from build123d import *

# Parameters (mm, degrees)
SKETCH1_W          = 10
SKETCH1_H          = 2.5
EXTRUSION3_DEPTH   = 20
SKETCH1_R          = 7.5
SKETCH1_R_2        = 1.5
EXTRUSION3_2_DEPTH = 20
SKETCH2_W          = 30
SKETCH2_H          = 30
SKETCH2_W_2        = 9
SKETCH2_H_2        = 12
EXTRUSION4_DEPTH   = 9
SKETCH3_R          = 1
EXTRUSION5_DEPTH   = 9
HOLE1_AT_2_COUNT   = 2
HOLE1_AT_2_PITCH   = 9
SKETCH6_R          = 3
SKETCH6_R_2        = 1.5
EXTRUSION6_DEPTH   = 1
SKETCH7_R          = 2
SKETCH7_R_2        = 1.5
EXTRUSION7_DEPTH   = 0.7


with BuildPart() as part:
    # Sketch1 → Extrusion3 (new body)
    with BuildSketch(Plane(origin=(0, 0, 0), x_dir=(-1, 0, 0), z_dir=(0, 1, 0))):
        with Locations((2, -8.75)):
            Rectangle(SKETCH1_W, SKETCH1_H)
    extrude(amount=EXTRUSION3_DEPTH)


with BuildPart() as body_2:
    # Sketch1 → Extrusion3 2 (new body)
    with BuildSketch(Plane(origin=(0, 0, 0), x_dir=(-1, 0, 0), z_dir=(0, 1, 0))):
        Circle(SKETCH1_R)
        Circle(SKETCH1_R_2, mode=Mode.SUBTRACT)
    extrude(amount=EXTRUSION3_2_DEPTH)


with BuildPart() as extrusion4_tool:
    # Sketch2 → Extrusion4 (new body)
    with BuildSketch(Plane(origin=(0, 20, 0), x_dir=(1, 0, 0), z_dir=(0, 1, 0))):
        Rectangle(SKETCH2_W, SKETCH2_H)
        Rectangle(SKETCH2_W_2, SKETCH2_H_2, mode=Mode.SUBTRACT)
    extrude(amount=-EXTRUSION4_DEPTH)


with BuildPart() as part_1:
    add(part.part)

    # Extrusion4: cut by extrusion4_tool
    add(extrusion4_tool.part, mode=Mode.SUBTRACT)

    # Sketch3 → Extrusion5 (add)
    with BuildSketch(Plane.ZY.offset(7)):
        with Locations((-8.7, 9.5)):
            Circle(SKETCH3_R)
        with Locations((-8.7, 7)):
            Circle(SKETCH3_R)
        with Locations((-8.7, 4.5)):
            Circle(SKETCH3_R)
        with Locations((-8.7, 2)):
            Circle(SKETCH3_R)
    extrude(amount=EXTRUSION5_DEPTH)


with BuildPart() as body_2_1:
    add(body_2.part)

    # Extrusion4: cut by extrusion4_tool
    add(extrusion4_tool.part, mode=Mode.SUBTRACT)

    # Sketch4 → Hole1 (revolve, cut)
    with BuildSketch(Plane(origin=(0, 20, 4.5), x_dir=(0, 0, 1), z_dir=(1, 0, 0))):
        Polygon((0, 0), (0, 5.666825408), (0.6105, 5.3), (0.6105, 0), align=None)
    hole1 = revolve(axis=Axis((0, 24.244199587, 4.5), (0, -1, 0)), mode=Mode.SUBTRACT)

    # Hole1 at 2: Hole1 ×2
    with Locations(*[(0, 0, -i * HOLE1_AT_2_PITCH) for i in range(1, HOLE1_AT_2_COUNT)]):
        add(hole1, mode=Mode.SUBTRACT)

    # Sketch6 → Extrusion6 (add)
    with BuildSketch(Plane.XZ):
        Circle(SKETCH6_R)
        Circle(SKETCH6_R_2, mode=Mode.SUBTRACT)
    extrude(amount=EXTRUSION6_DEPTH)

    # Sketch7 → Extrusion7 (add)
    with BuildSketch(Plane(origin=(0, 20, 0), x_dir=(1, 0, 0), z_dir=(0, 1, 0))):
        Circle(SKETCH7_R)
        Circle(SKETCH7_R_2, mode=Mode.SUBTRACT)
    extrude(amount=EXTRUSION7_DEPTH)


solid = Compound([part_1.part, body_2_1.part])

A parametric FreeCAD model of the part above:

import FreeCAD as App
import Part
import Sketcher
from FreeCAD import Vector
Q = App.Units.Quantity


def add_polygon(sketch, points):
    """Adds a closed chain of lines whose ends are joined by coincident constraints."""
    first, n = sketch.GeometryCount, len(points)
    for a, b in zip(points, points[1:] + points[:1]):
        sketch.addGeometry(Part.LineSegment(App.Vector(*a, 0), App.Vector(*b, 0)), False)
    for i in range(n):
        sketch.addConstraint(Sketcher.Constraint("Coincident", first + i, 2, first + (i + 1) % n, 1))

doc = App.newDocument("Part")
params = doc.addObject("Spreadsheet::Sheet", "Params")
for row, (alias, value) in enumerate([
    ("sketch1_width", "10 mm"),
    ("sketch1_height", "2.5 mm"),
    ("pad1_length", "20 mm"),
    ("sketch2_diameter", "15 mm"),
    ("sketch2_diameter2", "3 mm"),
    ("pad2_length", "20 mm"),
    ("sketch3_width", "30 mm"),
    ("sketch3_width2", "9 mm"),
    ("sketch3_height", "12 mm"),
    ("pad3_length", "9 mm"),
    ("sketch4_diameter", "2 mm"),
    ("pad4_length", "9 mm"),
    ("sketch5_width", "5.3 mm"),
    ("groove_angle", "360 deg"),
    ("linearpattern_pitch", "9 mm"),
    ("sketch6_diameter", "6 mm"),
    ("sketch6_diameter2", "3 mm"),
    ("pad5_length", "1 mm"),
    ("sketch7_diameter", "4 mm"),
    ("sketch7_diameter2", "3 mm"),
    ("pad6_length", "0.7 mm"),
], start=1):
    params.set(f"A{row}", alias)
    params.set(f"B{row}", "=" + value)
    params.setAlias(f"B{row}", alias)

body = doc.addObject("PartDesign::Body", "Body")

sketch1 = doc.addObject("Sketcher::SketchObject", "Sketch")
body.addObject(sketch1)
sketch1.AttachmentSupport = (doc.XZ_Plane, [""])
sketch1.MapMode = "FlatFace"
add_polygon(sketch1, [(3, -7.5), (3, -10), (-7, -10), (-7, -7.5)])
sketch1.addConstraint([
    Sketcher.Constraint("Vertical", 0),
    Sketcher.Constraint("Horizontal", 1),
    Sketcher.Constraint("Vertical", 2),
    Sketcher.Constraint("Horizontal", 3),
    Sketcher.Constraint("DistanceX", 1, 2, 1, 1, 10.0),
    Sketcher.Constraint("DistanceY", 0, 2, 0, 1, 2.5),
    Sketcher.Constraint("DistanceX", -1, 1, 0, 2, 3.0),
    Sketcher.Constraint("DistanceY", 0, 2, -1, 1, 10.0),
])
sketch1.setExpression("Constraints[8]", "Params.sketch1_width")
sketch1.setExpression("Constraints[9]", "Params.sketch1_height")
pad1 = doc.addObject("PartDesign::Pad", "Pad")
body.addObject(pad1)
pad1.Profile = sketch1
pad1.setExpression("Length", "Params.pad1_length")
pad1.Reversed = True
body2 = doc.addObject("PartDesign::Body", "Body001")

sketch2 = doc.addObject("Sketcher::SketchObject", "Sketch001")
body2.addObject(sketch2)
sketch2.AttachmentSupport = (doc.getObject("XZ_Plane001"), [""])
sketch2.MapMode = "FlatFace"
sketch2.addGeometry([
    Part.Circle(Vector(0, 0, 0), Vector(0, 0, 1), 7.5),
    Part.Circle(Vector(0, 0, 0), Vector(0, 0, 1), 1.5),
], False)
sketch2.addConstraint([
    Sketcher.Constraint("Coincident", 0, 3, -1, 1),
    Sketcher.Constraint("Coincident", 1, 3, -1, 1),
    Sketcher.Constraint("Diameter", 0, 15.0),
    Sketcher.Constraint("Diameter", 1, 3.0),
])
sketch2.setExpression("Constraints[2]", "Params.sketch2_diameter")
sketch2.setExpression("Constraints[3]", "Params.sketch2_diameter2")
pad2 = doc.addObject("PartDesign::Pad", "Pad001")
body2.addObject(pad2)
pad2.Profile = sketch2
pad2.setExpression("Length", "Params.pad2_length")
pad2.Reversed = True
body3 = doc.addObject("PartDesign::Body", "Body002")

sketch3 = doc.addObject("Sketcher::SketchObject", "Sketch002")
body3.addObject(sketch3)
sketch3.AttachmentSupport = (doc.getObject("XZ_Plane002"), [""])
sketch3.MapMode = "FlatFace"
sketch3.AttachmentOffset = App.Placement(Vector(0, 0, -20), App.Rotation())
add_polygon(sketch3, [(-15, -15), (-15, 15), (15, 15), (15, -15)])
add_polygon(sketch3, [(4.5, 6), (-4.5, 6), (-4.5, -6), (4.5, -6)])
sketch3.addConstraint([
    Sketcher.Constraint("Vertical", 0),
    Sketcher.Constraint("Horizontal", 1),
    Sketcher.Constraint("Vertical", 2),
    Sketcher.Constraint("Horizontal", 3),
    Sketcher.Constraint("Horizontal", 4),
    Sketcher.Constraint("Vertical", 5),
    Sketcher.Constraint("Horizontal", 6),
    Sketcher.Constraint("Vertical", 7),
    Sketcher.Constraint("Symmetric", 0, 2, 2, 2, -1, 1),
    Sketcher.Constraint("Symmetric", 4, 2, 6, 2, -1, 1),
    Sketcher.Constraint("Equal", 3, 0),
    Sketcher.Constraint("DistanceX", 1, 1, 1, 2, 30.0),
    Sketcher.Constraint("DistanceX", 4, 2, 4, 1, 9.0),
    Sketcher.Constraint("DistanceY", 5, 2, 5, 1, 12.0),
])
sketch3.setExpression("Constraints[19]", "Params.sketch3_width")
sketch3.setExpression("Constraints[20]", "Params.sketch3_width2")
sketch3.setExpression("Constraints[21]", "Params.sketch3_height")
pad3 = doc.addObject("PartDesign::Pad", "Pad002")
body3.addObject(pad3)
pad3.Profile = sketch3
pad3.setExpression("Length", "Params.pad3_length")
doc.recompute()

body4 = doc.addObject("PartDesign::Body", "Body003")
body4.BaseFeature = body3
boolean = doc.addObject("PartDesign::Boolean", "Boolean")
body.addObject(boolean)
boolean.Type = "Cut"
boolean.addObjects([body4])
doc.recompute()

sketch4 = doc.addObject("Sketcher::SketchObject", "Sketch003")
body.addObject(sketch4)
sketch4.AttachmentSupport = (doc.YZ_Plane, [""])
sketch4.MapMode = "FlatFace"
sketch4.AttachmentOffset = App.Placement(Vector(0, 0, -7), App.Rotation())
sketch4.addGeometry([
    Part.Circle(Vector(9.5, -8.7, 0), Vector(0, 0, 1), 1),
    Part.Circle(Vector(7, -8.7, 0), Vector(0, 0, 1), 1),
    Part.Circle(Vector(4.5, -8.7, 0), Vector(0, 0, 1), 1),
    Part.Circle(Vector(2, -8.7, 0), Vector(0, 0, 1), 1),
], False)
sketch4.addConstraint([
    Sketcher.Constraint("Equal", 0, 1),
    Sketcher.Constraint("Equal", 1, 2),
    Sketcher.Constraint("Equal", 2, 3),
    Sketcher.Constraint("Horizontal", 0, 3, 1, 3),
    Sketcher.Constraint("Horizontal", 1, 3, 2, 3),
    Sketcher.Constraint("Horizontal", 2, 3, 3, 3),
    Sketcher.Constraint("Diameter", 0, 2.0),
    Sketcher.Constraint("DistanceX", -1, 1, 1, 3, 7.0),
    Sketcher.Constraint("DistanceX", -1, 1, 3, 3, 2.0),
    Sketcher.Constraint("DistanceX", 2, 3, 0, 3, 5.0),
    Sketcher.Constraint("DistanceX", -1, 1, 0, 3, 9.5),
    Sketcher.Constraint("DistanceY", 0, 3, -1, 1, 8.7),
])
sketch4.setExpression("Constraints[6]", "Params.sketch4_diameter")
pad4 = doc.addObject("PartDesign::Pad", "Pad003")
body.addObject(pad4)
pad4.Profile = sketch4
pad4.setExpression("Length", "Params.pad4_length")
pad4.Reversed = True
doc.recompute()

boolean2 = doc.addObject("PartDesign::Boolean", "Boolean001")
body2.addObject(boolean2)
boolean2.Type = "Cut"
boolean2.addObjects([body3])

sketch5 = doc.addObject("Sketcher::SketchObject", "Sketch004")
body2.addObject(sketch5)
sketch5.AttachmentSupport = (doc.getObject("YZ_Plane001"), [""])
sketch5.MapMode = "FlatFace"
add_polygon(sketch5, [(14.333175, 4.5), (20, 4.5), (20, 5.1105), (14.7, 5.1105)])
sketch5.addGeometry(Part.LineSegment(Vector(20, 4.5, 0), Vector(14.333175, 4.5, 0)), True)
sketch5.addConstraint([
    Sketcher.Constraint("Horizontal", 0),
    Sketcher.Constraint("Vertical", 1),
    Sketcher.Constraint("Horizontal", 2),
    Sketcher.Constraint("Horizontal", 4),
    Sketcher.Constraint("Coincident", 4, 1, 0, 2),
    Sketcher.Constraint("Equal", 0, 4),
    Sketcher.Constraint("Angle", 3, Q("-121 deg")),
    Sketcher.Constraint("DistanceX", 2, 2, 2, 1, 5.3),
    Sketcher.Constraint("DistanceX", -1, 1, 0, 2, 20.0),
    Sketcher.Constraint("DistanceY", -1, 1, 0, 2, 4.5),
    Sketcher.Constraint("DistanceY", 1, 1, 1, 2, 0.6105),
])
sketch5.setExpression("Constraints[11]", "Params.sketch5_width")
groove = doc.addObject("PartDesign::Groove", "Groove")
body2.addObject(groove)
groove.Profile = sketch5
groove.ReferenceAxis = (sketch5, ["Axis0"])
groove.setExpression("Angle", "Params.groove_angle")
doc.recompute()

linearpattern = doc.addObject("PartDesign::LinearPattern", "LinearPattern")
body2.addObject(linearpattern)
linearpattern.Originals = [groove]
linearpattern.Direction = (doc.getObject("Z_Axis001"), [""])
linearpattern.Mode = "offset"
linearpattern.setExpression("Offset", "Params.linearpattern_pitch")
linearpattern.Occurrences = 2
linearpattern.Reversed = True
body2.Tip = linearpattern

sketch6 = doc.addObject("Sketcher::SketchObject", "Sketch005")
body2.addObject(sketch6)
sketch6.AttachmentSupport = (doc.getObject("XZ_Plane001"), [""])
sketch6.MapMode = "FlatFace"
sketch6.addGeometry([
    Part.Circle(Vector(0, 0, 0), Vector(0, 0, 1), 3),
    Part.Circle(Vector(0, 0, 0), Vector(0, 0, 1), 1.5),
], False)
sketch6.addConstraint([
    Sketcher.Constraint("Coincident", 0, 3, -1, 1),
    Sketcher.Constraint("Coincident", 1, 3, -1, 1),
    Sketcher.Constraint("Diameter", 0, 6.0),
    Sketcher.Constraint("Diameter", 1, 3.0),
])
sketch6.setExpression("Constraints[2]", "Params.sketch6_diameter")
sketch6.setExpression("Constraints[3]", "Params.sketch6_diameter2")
pad5 = doc.addObject("PartDesign::Pad", "Pad004")
body2.addObject(pad5)
pad5.Profile = sketch6
pad5.setExpression("Length", "Params.pad5_length")

sketch7 = doc.addObject("Sketcher::SketchObject", "Sketch006")
body2.addObject(sketch7)
sketch7.AttachmentSupport = (doc.getObject("XZ_Plane001"), [""])
sketch7.MapMode = "FlatFace"
sketch7.AttachmentOffset = App.Placement(Vector(0, 0, -20), App.Rotation())
sketch7.addGeometry([
    Part.Circle(Vector(0, 0, 0), Vector(0, 0, 1), 2),
    Part.Circle(Vector(0, 0, 0), Vector(0, 0, 1), 1.5),
], False)
sketch7.addConstraint([
    Sketcher.Constraint("Coincident", 0, 3, -1, 1),
    Sketcher.Constraint("Coincident", 1, 3, -1, 1),
    Sketcher.Constraint("Diameter", 0, 4.0),
    Sketcher.Constraint("Diameter", 1, 3.0),
])
sketch7.setExpression("Constraints[2]", "Params.sketch7_diameter")
sketch7.setExpression("Constraints[3]", "Params.sketch7_diameter2")
pad6 = doc.addObject("PartDesign::Pad", "Pad005")
body2.addObject(pad6)
pad6.Profile = sketch7
pad6.setExpression("Length", "Params.pad6_length")
pad6.Reversed = True

doc.recompute()
